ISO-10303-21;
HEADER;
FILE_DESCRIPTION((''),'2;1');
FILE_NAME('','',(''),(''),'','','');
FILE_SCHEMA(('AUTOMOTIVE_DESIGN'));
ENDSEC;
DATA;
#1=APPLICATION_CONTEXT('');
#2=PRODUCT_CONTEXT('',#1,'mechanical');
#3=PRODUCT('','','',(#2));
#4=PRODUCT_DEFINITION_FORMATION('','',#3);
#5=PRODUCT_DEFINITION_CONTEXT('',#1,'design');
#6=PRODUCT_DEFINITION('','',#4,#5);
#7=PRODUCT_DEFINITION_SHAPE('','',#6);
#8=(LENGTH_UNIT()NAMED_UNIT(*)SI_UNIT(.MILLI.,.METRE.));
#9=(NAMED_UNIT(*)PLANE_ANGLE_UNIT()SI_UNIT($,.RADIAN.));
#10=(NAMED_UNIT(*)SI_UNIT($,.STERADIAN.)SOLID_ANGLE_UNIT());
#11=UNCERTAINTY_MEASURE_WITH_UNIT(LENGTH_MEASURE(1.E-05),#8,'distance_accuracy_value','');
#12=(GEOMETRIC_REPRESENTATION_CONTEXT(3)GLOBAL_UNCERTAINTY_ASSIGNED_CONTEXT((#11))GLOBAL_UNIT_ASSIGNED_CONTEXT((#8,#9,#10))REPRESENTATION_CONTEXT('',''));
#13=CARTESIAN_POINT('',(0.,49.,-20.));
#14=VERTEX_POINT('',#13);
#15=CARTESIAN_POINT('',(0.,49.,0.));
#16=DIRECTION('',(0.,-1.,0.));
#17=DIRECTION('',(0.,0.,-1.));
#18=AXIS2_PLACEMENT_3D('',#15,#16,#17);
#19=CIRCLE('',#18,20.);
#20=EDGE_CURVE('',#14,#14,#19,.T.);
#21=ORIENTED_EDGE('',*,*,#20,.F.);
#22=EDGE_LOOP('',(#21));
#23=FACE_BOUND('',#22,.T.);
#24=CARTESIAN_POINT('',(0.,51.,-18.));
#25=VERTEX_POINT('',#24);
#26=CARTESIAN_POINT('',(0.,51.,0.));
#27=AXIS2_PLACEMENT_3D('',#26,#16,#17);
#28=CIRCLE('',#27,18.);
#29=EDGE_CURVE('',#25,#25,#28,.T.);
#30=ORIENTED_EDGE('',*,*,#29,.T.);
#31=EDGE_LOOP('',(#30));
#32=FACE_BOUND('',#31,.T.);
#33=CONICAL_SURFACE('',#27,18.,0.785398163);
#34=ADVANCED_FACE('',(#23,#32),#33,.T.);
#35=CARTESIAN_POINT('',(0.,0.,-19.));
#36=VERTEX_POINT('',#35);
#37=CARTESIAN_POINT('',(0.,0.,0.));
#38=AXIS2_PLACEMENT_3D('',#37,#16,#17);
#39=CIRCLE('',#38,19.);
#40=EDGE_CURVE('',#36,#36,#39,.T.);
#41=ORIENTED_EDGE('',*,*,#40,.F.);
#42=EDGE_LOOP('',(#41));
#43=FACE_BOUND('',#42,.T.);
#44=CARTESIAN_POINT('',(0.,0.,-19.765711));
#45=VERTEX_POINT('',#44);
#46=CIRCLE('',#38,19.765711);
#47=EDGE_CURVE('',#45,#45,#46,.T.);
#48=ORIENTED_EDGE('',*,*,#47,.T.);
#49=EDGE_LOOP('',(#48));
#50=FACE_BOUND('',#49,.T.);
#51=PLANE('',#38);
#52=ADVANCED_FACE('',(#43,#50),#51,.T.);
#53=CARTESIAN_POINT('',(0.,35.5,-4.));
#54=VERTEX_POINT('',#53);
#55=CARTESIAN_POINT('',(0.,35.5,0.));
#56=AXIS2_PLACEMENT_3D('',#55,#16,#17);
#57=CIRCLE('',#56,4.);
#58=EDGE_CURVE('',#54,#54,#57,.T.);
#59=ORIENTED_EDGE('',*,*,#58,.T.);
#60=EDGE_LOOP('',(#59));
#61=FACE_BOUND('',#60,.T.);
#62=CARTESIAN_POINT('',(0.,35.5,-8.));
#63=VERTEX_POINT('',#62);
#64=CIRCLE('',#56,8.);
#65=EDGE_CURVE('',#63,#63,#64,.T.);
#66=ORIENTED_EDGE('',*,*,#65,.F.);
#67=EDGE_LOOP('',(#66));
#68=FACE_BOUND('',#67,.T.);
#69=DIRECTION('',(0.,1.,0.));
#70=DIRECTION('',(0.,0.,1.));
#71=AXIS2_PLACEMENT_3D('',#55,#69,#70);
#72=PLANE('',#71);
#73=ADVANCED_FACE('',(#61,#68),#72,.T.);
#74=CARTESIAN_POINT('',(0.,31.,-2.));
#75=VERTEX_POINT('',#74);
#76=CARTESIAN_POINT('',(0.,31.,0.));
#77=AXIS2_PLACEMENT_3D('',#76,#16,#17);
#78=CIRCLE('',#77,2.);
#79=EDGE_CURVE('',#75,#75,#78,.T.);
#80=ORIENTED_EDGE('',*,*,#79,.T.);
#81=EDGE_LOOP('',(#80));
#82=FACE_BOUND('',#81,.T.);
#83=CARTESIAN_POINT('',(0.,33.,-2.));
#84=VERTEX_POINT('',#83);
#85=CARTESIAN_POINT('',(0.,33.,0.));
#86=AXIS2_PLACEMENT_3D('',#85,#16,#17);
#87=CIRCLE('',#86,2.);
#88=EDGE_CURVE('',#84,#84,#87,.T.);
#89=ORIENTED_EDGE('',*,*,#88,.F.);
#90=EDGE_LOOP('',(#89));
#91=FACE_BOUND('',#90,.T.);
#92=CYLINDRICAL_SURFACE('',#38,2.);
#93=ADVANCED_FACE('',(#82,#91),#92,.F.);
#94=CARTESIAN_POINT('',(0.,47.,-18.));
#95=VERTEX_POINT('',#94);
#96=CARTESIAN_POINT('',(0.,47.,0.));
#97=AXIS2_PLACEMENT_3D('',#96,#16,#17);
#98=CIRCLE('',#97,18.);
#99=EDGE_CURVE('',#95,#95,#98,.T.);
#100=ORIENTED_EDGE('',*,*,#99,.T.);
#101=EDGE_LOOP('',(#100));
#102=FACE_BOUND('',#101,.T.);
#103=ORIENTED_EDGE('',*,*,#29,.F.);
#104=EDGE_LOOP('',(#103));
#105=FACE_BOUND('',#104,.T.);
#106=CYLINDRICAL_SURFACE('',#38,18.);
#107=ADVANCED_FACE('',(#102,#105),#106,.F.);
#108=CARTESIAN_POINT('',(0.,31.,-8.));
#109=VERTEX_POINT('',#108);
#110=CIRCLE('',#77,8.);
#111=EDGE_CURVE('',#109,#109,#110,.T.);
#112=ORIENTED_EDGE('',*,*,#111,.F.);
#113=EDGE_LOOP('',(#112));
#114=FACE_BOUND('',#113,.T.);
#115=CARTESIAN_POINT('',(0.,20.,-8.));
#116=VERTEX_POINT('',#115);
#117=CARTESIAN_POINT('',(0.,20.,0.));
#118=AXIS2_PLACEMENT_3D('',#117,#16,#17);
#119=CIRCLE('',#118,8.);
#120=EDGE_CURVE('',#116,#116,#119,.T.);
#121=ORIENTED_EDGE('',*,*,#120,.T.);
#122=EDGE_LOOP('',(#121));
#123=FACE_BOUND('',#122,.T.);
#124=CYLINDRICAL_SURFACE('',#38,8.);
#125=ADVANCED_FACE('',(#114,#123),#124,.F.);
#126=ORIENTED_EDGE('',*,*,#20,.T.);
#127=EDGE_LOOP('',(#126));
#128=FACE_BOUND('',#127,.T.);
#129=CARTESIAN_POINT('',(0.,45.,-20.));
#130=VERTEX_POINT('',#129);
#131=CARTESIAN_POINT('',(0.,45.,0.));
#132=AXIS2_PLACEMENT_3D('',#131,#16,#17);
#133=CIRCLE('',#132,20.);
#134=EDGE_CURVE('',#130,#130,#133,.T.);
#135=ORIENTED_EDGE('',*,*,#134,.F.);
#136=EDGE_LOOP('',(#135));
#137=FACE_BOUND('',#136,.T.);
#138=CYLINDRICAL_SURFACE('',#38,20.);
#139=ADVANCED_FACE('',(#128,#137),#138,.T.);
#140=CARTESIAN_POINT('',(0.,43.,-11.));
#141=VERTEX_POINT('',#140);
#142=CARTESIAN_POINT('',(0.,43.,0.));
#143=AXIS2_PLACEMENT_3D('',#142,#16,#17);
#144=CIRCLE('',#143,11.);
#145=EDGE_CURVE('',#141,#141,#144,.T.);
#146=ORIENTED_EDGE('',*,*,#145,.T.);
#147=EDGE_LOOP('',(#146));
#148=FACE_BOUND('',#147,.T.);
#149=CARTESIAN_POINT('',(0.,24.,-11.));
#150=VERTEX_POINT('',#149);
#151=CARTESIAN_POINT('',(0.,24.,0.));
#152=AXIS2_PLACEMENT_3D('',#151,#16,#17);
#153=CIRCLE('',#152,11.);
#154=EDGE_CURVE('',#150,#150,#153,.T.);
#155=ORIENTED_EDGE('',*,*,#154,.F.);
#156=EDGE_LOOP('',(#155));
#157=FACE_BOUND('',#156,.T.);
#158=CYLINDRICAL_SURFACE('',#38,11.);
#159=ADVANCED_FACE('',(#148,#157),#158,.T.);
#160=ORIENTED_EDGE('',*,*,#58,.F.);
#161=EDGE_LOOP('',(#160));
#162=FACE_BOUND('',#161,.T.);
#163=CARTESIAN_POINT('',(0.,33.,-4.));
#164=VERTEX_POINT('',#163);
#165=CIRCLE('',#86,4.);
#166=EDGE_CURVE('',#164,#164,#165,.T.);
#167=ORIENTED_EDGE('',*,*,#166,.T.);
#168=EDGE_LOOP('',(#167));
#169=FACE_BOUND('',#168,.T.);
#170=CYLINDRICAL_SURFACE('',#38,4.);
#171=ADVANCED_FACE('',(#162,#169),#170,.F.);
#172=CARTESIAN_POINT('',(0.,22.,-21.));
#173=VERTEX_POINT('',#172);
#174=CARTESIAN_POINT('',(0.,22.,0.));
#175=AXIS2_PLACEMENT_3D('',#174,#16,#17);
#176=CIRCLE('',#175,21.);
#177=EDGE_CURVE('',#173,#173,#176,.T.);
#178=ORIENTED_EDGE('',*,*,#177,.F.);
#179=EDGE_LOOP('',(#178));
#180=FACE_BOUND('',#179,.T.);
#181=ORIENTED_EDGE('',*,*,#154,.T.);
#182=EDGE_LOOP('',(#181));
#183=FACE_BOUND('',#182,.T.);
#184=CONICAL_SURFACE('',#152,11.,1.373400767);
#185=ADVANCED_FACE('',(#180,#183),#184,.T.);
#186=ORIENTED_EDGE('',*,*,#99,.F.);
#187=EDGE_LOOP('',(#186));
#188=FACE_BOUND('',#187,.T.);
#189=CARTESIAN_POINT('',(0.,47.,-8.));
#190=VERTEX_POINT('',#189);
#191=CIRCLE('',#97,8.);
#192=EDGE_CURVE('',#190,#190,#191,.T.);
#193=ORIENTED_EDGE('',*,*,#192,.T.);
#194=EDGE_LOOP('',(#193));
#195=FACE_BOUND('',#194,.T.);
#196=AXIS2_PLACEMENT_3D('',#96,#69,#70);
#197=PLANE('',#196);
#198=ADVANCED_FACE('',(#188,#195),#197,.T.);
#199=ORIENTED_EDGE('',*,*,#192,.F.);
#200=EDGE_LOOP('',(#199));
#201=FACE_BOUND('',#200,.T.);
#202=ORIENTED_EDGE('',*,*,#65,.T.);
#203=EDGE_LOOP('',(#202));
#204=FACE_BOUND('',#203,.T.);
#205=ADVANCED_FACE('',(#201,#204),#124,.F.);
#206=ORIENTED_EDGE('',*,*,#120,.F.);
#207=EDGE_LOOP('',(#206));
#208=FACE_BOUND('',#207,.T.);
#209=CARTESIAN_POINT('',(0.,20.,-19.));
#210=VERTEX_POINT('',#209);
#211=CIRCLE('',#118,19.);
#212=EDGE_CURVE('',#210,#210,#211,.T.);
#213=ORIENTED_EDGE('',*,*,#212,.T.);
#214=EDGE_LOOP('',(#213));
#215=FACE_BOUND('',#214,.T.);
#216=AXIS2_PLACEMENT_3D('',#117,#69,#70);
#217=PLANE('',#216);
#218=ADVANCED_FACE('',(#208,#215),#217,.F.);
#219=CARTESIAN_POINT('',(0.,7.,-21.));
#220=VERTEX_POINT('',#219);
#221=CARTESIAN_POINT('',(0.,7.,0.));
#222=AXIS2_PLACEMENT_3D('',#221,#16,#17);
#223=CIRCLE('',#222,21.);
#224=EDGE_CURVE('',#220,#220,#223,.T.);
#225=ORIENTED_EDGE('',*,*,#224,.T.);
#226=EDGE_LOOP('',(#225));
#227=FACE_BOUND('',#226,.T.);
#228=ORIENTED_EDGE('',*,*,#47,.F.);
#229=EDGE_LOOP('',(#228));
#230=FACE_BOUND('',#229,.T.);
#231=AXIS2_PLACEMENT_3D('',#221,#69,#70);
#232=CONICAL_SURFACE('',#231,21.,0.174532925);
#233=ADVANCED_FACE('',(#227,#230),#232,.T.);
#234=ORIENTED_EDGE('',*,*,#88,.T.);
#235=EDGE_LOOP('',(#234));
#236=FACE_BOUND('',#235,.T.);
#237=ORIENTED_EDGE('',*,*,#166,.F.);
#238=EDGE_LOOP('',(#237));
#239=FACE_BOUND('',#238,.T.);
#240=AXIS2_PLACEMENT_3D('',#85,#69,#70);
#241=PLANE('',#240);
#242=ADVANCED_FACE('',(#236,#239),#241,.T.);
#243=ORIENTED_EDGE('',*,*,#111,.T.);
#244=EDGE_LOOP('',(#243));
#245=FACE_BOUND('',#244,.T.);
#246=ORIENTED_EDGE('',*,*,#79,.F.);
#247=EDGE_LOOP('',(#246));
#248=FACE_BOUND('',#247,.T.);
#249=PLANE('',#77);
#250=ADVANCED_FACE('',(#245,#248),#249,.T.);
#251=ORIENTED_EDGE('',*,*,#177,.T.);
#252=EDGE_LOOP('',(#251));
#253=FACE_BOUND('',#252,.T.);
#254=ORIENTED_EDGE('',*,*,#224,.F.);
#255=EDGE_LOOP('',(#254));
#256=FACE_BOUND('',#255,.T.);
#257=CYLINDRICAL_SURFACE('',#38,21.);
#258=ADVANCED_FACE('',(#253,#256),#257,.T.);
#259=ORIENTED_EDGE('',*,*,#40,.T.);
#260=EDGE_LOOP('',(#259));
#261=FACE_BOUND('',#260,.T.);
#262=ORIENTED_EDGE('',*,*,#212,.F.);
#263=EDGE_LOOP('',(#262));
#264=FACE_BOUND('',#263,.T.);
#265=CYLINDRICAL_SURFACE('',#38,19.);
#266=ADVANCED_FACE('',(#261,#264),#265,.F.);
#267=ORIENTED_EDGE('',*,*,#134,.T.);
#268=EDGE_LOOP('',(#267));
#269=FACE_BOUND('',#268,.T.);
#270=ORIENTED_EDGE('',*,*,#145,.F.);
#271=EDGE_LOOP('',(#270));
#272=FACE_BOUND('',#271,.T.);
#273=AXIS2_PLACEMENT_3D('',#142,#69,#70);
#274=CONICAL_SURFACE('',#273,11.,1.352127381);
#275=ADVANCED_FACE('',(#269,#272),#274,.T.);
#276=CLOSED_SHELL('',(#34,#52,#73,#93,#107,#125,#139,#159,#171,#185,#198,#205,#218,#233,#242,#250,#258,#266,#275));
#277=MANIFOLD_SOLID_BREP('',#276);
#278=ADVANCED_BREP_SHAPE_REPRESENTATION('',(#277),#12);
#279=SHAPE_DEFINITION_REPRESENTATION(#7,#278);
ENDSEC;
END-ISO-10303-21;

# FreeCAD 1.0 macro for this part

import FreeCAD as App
import Part
import Sketcher

V = App.Vector
Q = App.Units.Quantity


def add_polygon(sketch, points):
    """Adds a closed chain of lines whose ends are joined by coincident constraints."""
    first, n = sketch.GeometryCount, len(points)
    for a, b in zip(points, points[1:] + points[:1]):
        sketch.addGeometry(Part.LineSegment(App.Vector(*a, 0), App.Vector(*b, 0)), False)
    for i in range(n):
        sketch.addConstraint(Sketcher.Constraint("Coincident", first + i, 2, first + (i + 1) % n, 1))

doc = App.newDocument("Part")
body = doc.addObject("PartDesign::Body", "Body")

# Sketch on XY plane
sketch1 = doc.addObject("Sketcher::SketchObject", "Sketch")
body.addObject(sketch1)
sketch1.AttachmentSupport = (doc.XY_Plane, [""])
sketch1.MapMode = "FlatFace"
add_polygon(sketch1, [(20, 45), (20, 49), (18, 51), (18, 47), (8, 47), (8, 35.5), (4, 35.5), (4, 33), (2, 33), (2, 31), (8, 31), (8, 20), (19, 20), (19, 0), (19.8, 0), (21, 7), (21, 22), (11, 24), (11, 43)])  # lines 0-18
sketch1.addConstraint([
    Sketcher.Constraint("Vertical", 0),
    Sketcher.Constraint("Vertical", 2),
    Sketcher.Constraint("Horizontal", 3),
    Sketcher.Constraint("Vertical", 4),
    Sketcher.Constraint("Horizontal", 5),
    Sketcher.Constraint("Vertical", 6),
    Sketcher.Constraint("Horizontal", 7),
    Sketcher.Constraint("Vertical", 8),
    Sketcher.Constraint("Horizontal", 9),
    Sketcher.Constraint("Vertical", 10),
    Sketcher.Constraint("Horizontal", 11),
    Sketcher.Constraint("Vertical", 12),
    Sketcher.Constraint("Horizontal", 13),
    Sketcher.Constraint("Vertical", 15),
    Sketcher.Constraint("Vertical", 17),
    Sketcher.Constraint("PointOnObject", 12, 2, -1),
    Sketcher.Constraint("Vertical", 4, 2, 9, 2),
    Sketcher.Constraint("Equal", 5, 0),
    Sketcher.Constraint("Equal", 0, 2),
    Sketcher.Constraint("Equal", 7, 8),
    Sketcher.Constraint("Equal", 11, 10),
    Sketcher.Constraint("DistanceX", 3, 2, 3, 1, Q("10 mm")),
    Sketcher.Constraint("DistanceX", 5, 2, 5, 1, Q("4 mm")),
    Sketcher.Constraint("DistanceX", 7, 2, 7, 1, Q("2 mm")),
    Sketcher.Constraint("DistanceX", 11, 1, 11, 2, Q("11 mm")),
    Sketcher.Constraint("DistanceY", 12, 2, 12, 1, Q("20 mm")),
    Sketcher.Constraint("DistanceY", 15, 1, 15, 2, Q("15 mm")),
    Sketcher.Constraint("DistanceY", 17, 1, 17, 2, Q("19 mm")),
    Sketcher.Constraint("Angle", 1, Q("135 deg")),
    Sketcher.Constraint("Angle", 14, Q("80 deg")),
    Sketcher.Constraint("DistanceY", 4, 2, 4, 1, Q("11.5 mm")),
    Sketcher.Constraint("DistanceY", 6, 2, 6, 1, Q("2.5 mm")),
    Sketcher.Constraint("DistanceX", -1, 1, 0, 2, Q("20 mm")),
    Sketcher.Constraint("DistanceY", -1, 1, 0, 2, Q("49 mm")),
    Sketcher.Constraint("DistanceX", -1, 1, 14, 2, Q("21 mm")),
    Sketcher.Constraint("DistanceY", -1, 1, 14, 2, Q("7 mm")),
    Sketcher.Constraint("DistanceX", -1, 1, 16, 2, Q("11 mm")),
    Sketcher.Constraint("DistanceY", -1, 1, 16, 2, Q("24 mm")),
])
revolution = doc.addObject("PartDesign::Revolution", "Revolution")
body.addObject(revolution)
revolution.Profile = sketch1
revolution.ReferenceAxis = (sketch1, ["V_Axis"])
revolution.Angle = 360

doc.recompute()
